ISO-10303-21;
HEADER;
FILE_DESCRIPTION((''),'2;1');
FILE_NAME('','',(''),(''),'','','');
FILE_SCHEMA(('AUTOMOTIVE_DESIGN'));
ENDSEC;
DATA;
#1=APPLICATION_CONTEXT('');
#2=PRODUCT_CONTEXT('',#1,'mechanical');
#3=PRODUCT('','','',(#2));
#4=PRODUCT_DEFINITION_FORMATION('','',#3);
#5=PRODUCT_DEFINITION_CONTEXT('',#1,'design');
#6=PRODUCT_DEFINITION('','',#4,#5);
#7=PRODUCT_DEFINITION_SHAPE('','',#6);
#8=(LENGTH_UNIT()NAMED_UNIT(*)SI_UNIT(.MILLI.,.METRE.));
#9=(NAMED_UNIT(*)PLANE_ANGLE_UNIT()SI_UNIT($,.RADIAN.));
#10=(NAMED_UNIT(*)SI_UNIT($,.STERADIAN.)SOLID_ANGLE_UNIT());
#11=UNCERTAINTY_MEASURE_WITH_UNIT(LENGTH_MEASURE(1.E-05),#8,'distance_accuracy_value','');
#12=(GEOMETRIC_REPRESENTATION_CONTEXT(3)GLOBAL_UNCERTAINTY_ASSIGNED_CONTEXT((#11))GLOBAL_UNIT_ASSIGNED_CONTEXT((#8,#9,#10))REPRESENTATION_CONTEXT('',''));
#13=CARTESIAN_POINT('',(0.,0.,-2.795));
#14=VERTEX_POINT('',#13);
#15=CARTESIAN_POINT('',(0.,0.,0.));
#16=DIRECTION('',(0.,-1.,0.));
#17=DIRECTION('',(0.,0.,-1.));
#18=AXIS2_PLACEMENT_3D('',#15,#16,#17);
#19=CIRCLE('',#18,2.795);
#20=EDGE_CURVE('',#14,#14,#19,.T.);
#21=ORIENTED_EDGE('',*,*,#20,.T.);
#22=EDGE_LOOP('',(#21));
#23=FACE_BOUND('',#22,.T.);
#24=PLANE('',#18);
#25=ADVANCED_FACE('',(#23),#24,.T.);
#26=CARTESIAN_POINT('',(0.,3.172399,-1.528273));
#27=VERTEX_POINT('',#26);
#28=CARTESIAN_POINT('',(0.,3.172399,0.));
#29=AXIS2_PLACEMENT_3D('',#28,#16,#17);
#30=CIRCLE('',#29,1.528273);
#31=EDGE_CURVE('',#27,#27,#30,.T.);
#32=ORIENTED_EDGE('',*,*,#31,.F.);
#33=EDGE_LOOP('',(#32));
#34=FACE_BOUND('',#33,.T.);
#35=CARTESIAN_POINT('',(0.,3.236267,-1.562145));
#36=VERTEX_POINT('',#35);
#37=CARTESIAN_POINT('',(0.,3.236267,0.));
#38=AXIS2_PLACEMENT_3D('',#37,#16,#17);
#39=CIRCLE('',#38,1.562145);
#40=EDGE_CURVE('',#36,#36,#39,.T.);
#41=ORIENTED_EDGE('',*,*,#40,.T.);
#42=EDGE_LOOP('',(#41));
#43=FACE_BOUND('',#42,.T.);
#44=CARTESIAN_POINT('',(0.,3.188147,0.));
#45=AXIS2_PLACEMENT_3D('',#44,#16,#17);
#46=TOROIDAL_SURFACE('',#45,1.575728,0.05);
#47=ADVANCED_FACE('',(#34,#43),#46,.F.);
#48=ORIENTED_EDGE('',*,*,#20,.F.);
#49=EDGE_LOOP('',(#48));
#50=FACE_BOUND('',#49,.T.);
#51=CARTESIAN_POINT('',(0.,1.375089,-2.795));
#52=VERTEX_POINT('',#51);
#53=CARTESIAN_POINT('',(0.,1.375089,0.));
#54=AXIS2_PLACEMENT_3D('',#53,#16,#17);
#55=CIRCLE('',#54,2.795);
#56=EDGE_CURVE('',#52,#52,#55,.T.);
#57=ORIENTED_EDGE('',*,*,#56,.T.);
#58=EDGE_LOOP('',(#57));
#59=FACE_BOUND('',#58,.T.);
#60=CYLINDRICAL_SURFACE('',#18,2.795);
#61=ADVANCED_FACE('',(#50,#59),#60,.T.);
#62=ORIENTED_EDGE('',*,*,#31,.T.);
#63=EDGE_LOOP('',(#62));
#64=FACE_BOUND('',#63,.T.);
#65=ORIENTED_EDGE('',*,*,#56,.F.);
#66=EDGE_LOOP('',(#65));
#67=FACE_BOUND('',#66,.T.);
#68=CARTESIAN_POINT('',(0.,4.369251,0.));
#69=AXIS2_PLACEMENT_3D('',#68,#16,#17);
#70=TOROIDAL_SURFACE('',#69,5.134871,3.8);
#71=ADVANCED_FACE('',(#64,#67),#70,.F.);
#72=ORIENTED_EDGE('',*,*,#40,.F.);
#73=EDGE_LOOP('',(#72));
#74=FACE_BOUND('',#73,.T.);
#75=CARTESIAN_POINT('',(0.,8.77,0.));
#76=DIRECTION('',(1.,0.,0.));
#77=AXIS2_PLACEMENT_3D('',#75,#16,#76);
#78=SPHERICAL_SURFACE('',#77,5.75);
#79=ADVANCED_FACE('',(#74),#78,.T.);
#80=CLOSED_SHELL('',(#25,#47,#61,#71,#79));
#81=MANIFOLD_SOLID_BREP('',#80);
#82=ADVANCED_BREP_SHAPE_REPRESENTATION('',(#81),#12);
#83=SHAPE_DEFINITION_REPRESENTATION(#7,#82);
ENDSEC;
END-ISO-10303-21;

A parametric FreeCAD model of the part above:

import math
import FreeCAD as App
import Part
import Sketcher
from FreeCAD import Vector
Q = App.Units.Quantity

doc = App.newDocument("Part")
body = doc.addObject("PartDesign::Body", "Body")

# Sketch on XY plane
sketch1 = body.newObject("Sketcher::SketchObject", "Sketch")
sketch1.AttachmentSupport = (doc.getObject("XY_Plane"), [""])
sketch1.MapMode = "FlatFace"
sketch1.addGeometry(Part.LineSegment(Vector(0, 0, 0), Vector(2.795, 0, 0)), False)
sketch1.addGeometry(Part.LineSegment(Vector(2.795, 0, 0), Vector(2.795, 1.375089, 0)), False)
sketch1.addGeometry(Part.ArcOfCircle(Part.Circle(Vector(5.134871, 4.369251, 0), Vector(0, 0, 1), 3.8), math.radians(-161.641537), math.radians(-128.006832)), False)
sketch1.addGeometry(Part.ArcOfCircle(Part.Circle(Vector(1.575728, 3.188147, 0), Vector(0, 0, 1), 0.05), math.radians(105.764103), math.radians(198.358461)), False)
sketch1.addGeometry(Part.ArcOfCircle(Part.Circle(Vector(0, 8.77, 0), Vector(0, 0, 1), 5.75), math.radians(-74.235899), math.radians(90)), False)
sketch1.addGeometry(Part.LineSegment(Vector(0, 14.52, 0), Vector(0, 0, 0)), False)
sketch1.addConstraint(Sketcher.Constraint("Coincident", 0, 2, 1, 1))
sketch1.addConstraint(Sketcher.Constraint("Coincident", 1, 2, 2, 2))
sketch1.addConstraint(Sketcher.Constraint("Tangent", 2, 1, 3, 2))
sketch1.addConstraint(Sketcher.Constraint("Tangent", 3, 1, 4, 1))
sketch1.addConstraint(Sketcher.Constraint("Coincident", 4, 2, 5, 1))
sketch1.addConstraint(Sketcher.Constraint("Coincident", 5, 2, 0, 1))
sketch1.addConstraint(Sketcher.Constraint("Horizontal", 0))
sketch1.addConstraint(Sketcher.Constraint("Vertical", 1))
sketch1.addConstraint(Sketcher.Constraint("Vertical", 5))
sketch1.addConstraint(Sketcher.Constraint("Coincident", 5, 2, -1, 1))
sketch1.addConstraint(Sketcher.Constraint("PointOnObject", 4, 3, -2))
sketch1.addConstraint(Sketcher.Constraint("Radius", 2, Q("3.8 mm")))
sketch1.addConstraint(Sketcher.Constraint("Radius", 3, Q("0.05 mm")))
sketch1.addConstraint(Sketcher.Constraint("Radius", 4, Q("5.75 mm")))
sketch1.addConstraint(Sketcher.Constraint("DistanceY", 5, 2, 5, 1, Q("14.52 mm")))
sketch1.addConstraint(Sketcher.Constraint("DistanceX", 0, 1, 0, 2, Q("2.795 mm")))
sketch1.addConstraint(Sketcher.Constraint("DistanceY", 1, 1, 1, 2, Q("1.375089 mm")))
sketch1.addConstraint(Sketcher.Constraint("DistanceY", -1, 1, 2, 1, Q("3.172399 mm")))
revolution = body.newObject("PartDesign::Revolution", "Revolution")
revolution.Profile = sketch1
revolution.ReferenceAxis = (sketch1, ["V_Axis"])
revolution.Angle = 360

doc.recompute()
